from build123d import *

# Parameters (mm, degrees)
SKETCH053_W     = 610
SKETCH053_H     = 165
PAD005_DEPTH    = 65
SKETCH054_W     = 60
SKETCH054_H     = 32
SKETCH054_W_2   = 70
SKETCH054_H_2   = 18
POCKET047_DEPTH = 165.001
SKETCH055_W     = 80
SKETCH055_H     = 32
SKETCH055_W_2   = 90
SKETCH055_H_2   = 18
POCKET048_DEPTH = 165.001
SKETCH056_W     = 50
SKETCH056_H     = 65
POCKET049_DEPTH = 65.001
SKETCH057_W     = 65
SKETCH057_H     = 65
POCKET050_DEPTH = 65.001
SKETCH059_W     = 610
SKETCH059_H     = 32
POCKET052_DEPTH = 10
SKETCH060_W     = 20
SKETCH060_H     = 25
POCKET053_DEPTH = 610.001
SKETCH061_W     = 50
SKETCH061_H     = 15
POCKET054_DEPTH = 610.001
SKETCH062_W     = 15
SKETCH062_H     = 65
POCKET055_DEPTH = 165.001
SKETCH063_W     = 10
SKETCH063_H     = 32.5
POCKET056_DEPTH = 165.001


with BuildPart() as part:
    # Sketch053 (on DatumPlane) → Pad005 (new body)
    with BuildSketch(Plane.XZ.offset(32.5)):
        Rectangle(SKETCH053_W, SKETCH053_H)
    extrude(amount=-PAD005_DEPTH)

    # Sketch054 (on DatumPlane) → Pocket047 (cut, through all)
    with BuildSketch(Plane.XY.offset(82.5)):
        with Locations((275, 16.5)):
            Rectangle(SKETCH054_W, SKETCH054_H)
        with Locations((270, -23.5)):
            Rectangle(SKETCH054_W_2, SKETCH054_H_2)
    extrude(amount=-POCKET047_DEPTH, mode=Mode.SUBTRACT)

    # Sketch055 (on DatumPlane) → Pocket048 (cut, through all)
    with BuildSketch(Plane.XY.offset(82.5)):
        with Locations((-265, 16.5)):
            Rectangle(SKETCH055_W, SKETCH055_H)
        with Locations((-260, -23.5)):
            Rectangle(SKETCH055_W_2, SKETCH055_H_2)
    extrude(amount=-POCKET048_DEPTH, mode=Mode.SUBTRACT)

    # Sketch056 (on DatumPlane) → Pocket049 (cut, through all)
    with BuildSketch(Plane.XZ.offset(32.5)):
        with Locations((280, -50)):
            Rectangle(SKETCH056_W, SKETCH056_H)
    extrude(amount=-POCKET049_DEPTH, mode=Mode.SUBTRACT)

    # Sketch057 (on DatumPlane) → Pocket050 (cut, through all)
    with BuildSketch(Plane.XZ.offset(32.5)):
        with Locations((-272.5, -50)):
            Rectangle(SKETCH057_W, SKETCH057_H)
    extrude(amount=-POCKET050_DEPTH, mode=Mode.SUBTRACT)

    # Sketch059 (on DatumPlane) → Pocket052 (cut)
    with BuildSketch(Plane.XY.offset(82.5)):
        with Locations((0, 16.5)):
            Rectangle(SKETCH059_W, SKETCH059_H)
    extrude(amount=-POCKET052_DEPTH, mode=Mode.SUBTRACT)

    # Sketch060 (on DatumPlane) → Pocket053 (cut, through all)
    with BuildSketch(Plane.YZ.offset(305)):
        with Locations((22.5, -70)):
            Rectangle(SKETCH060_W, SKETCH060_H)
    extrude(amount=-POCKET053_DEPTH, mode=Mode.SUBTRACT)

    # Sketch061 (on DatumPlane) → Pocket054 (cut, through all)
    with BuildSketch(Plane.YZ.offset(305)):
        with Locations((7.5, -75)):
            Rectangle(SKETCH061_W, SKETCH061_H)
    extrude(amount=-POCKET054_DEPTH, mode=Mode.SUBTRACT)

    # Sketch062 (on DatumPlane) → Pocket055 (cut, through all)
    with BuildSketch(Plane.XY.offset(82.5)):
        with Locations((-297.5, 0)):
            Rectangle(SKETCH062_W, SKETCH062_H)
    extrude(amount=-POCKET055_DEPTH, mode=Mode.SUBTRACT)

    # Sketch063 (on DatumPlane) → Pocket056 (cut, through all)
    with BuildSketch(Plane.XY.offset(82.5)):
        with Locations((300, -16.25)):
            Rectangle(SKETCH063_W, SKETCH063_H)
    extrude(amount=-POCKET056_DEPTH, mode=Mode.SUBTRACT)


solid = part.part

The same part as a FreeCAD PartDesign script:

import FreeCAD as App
import Part
import Sketcher

doc = App.newDocument("Part")
body = doc.addObject("PartDesign::Body", "Body")

sketch1 = doc.addObject("Sketcher::SketchObject", "Sketch")
body.addObject(sketch1)
sketch1.AttachmentSupport = (doc.XZ_Plane, [""])
sketch1.MapMode = "FlatFace"
sketch1.AttachmentOffset = App.Placement(App.Vector(0, 0, 32.5), App.Rotation())
sketch1.addGeometry([
    Part.LineSegment(App.Vector(-305, 82, 0), App.Vector(-305, -82, 0)),
    Part.LineSegment(App.Vector(-305, -82, 0), App.Vector(305, -82, 0)),
    Part.LineSegment(App.Vector(305, -82, 0), App.Vector(305, 82, 0)),
    Part.LineSegment(App.Vector(305, 82, 0), App.Vector(-305, 82, 0)),
], False)
sketch1.addConstraint([
    Sketcher.Constraint("Coincident", 0, 2, 1, 1),
    Sketcher.Constraint("Coincident", 1, 2, 2, 1),
    Sketcher.Constraint("Coincident", 2, 2, 3, 1),
    Sketcher.Constraint("Coincident", 3, 2, 0, 1),
    Sketcher.Constraint("Vertical", 0),
    Sketcher.Constraint("Horizontal", 1),
    Sketcher.Constraint("Vertical", 2),
    Sketcher.Constraint("Horizontal", 3),
    Sketcher.Constraint("Symmetric", 0, 2, 2, 2, -1, 1),
    Sketcher.Constraint("DistanceX", 1, 1, 1, 2, 610.0),
    Sketcher.Constraint("DistanceY", 0, 2, 0, 1, 165.0),
])
pad1 = doc.addObject("PartDesign::Pad", "Pad")
body.addObject(pad1)
pad1.Profile = sketch1
pad1.Length = 65
pad1.Reversed = True

sketch2 = doc.addObject("Sketcher::SketchObject", "Sketch001")
body.addObject(sketch2)
sketch2.AttachmentSupport = (doc.XY_Plane, [""])
sketch2.MapMode = "FlatFace"
sketch2.AttachmentOffset = App.Placement(App.Vector(0, 0, 82.5), App.Rotation())
sketch2.addGeometry([
    Part.LineSegment(App.Vector(245, 32, 0), App.Vector(245, 0, 0)),
    Part.LineSegment(App.Vector(245, 0, 0), App.Vector(305, 0, 0)),
    Part.LineSegment(App.Vector(305, 0, 0), App.Vector(305, 32, 0)),
    Part.LineSegment(App.Vector(305, 32, 0), App.Vector(245, 32, 0)),
    Part.LineSegment(App.Vector(235, -14, 0), App.Vector(235, -32, 0)),
    Part.LineSegment(App.Vector(235, -32, 0), App.Vector(305, -32, 0)),
    Part.LineSegment(App.Vector(305, -32, 0), App.Vector(305, -14, 0)),
    Part.LineSegment(App.Vector(305, -14, 0), App.Vector(235, -14, 0)),
], False)
sketch2.addConstraint([
    Sketcher.Constraint("Coincident", 0, 2, 1, 1),
    Sketcher.Constraint("Coincident", 1, 2, 2, 1),
    Sketcher.Constraint("Coincident", 2, 2, 3, 1),
    Sketcher.Constraint("Coincident", 3, 2, 0, 1),
    Sketcher.Constraint("Coincident", 4, 2, 5, 1),
    Sketcher.Constraint("Coincident", 5, 2, 6, 1),
    Sketcher.Constraint("Coincident", 6, 2, 7, 1),
    Sketcher.Constraint("Coincident", 7, 2, 4, 1),
    Sketcher.Constraint("Vertical", 0),
    Sketcher.Constraint("Horizontal", 1),
    Sketcher.Constraint("Vertical", 2),
    Sketcher.Constraint("Horizontal", 3),
    Sketcher.Constraint("Vertical", 4),
    Sketcher.Constraint("Horizontal", 5),
    Sketcher.Constraint("Vertical", 6),
    Sketcher.Constraint("Horizontal", 7),
    Sketcher.Constraint("Symmetric", 2, 2, 5, 2, -1),
    Sketcher.Constraint("DistanceX", 1, 1, 1, 2, 60.0),
    Sketcher.Constraint("DistanceX", 5, 1, 5, 2, 70.0),
    Sketcher.Constraint("DistanceY", 0, 2, 0, 1, 32.0),
    Sketcher.Constraint("DistanceY", 4, 2, 4, 1, 18.0),
    Sketcher.Constraint("DistanceX", -1, 1, 0, 2, 245.0),
    Sketcher.Constraint("DistanceY", 4, 2, 0, 2, 33.0),
])
pocket1 = doc.addObject("PartDesign::Pocket", "Pocket")
body.addObject(pocket1)
pocket1.Profile = sketch2
pocket1.Type = "ThroughAll"

sketch3 = doc.addObject("Sketcher::SketchObject", "Sketch002")
body.addObject(sketch3)
sketch3.AttachmentSupport = (doc.XY_Plane, [""])
sketch3.MapMode = "FlatFace"
sketch3.AttachmentOffset = App.Placement(App.Vector(0, 0, 82.5), App.Rotation())
sketch3.addGeometry([
    Part.LineSegment(App.Vector(-305, 32, 0), App.Vector(-305, 0, 0)),
    Part.LineSegment(App.Vector(-305, 0, 0), App.Vector(-225, 0, 0)),
    Part.LineSegment(App.Vector(-225, 0, 0), App.Vector(-225, 32, 0)),
    Part.LineSegment(App.Vector(-225, 32, 0), App.Vector(-305, 32, 0)),
    Part.LineSegment(App.Vector(-305, -14, 0), App.Vector(-305, -32, 0)),
    Part.LineSegment(App.Vector(-305, -32, 0), App.Vector(-215, -32, 0)),
    Part.LineSegment(App.Vector(-215, -32, 0), App.Vector(-215, -14, 0)),
    Part.LineSegment(App.Vector(-215, -14, 0), App.Vector(-305, -14, 0)),
], False)
sketch3.addConstraint([
    Sketcher.Constraint("Coincident", 0, 2, 1, 1),
    Sketcher.Constraint("Coincident", 1, 2, 2, 1),
    Sketcher.Constraint("Coincident", 2, 2, 3, 1),
    Sketcher.Constraint("Coincident", 3, 2, 0, 1),
    Sketcher.Constraint("Coincident", 4, 2, 5, 1),
    Sketcher.Constraint("Coincident", 5, 2, 6, 1),
    Sketcher.Constraint("Coincident", 6, 2, 7, 1),
    Sketcher.Constraint("Coincident", 7, 2, 4, 1),
    Sketcher.Constraint("Vertical", 0),
    Sketcher.Constraint("Horizontal", 1),
    Sketcher.Constraint("Vertical", 2),
    Sketcher.Constraint("Horizontal", 3),
    Sketcher.Constraint("Vertical", 4),
    Sketcher.Constraint("Horizontal", 5),
    Sketcher.Constraint("Vertical", 6),
    Sketcher.Constraint("Horizontal", 7),
    Sketcher.Constraint("Symmetric", 3, 2, 4, 2, -1),
    Sketcher.Constraint("DistanceX", 1, 1, 1, 2, 80.0),
    Sketcher.Constraint("DistanceX", 5, 1, 5, 2, 90.0),
    Sketcher.Constraint("DistanceY", 0, 2, 0, 1, 32.0),
    Sketcher.Constraint("DistanceY", 4, 2, 4, 1, 18.0),
    Sketcher.Constraint("DistanceX", 0, 2, -1, 1, 305.0),
    Sketcher.Constraint("DistanceY", 4, 2, 0, 2, 33.0),
])
pocket2 = doc.addObject("PartDesign::Pocket", "Pocket001")
body.addObject(pocket2)
pocket2.Profile = sketch3
pocket2.Type = "ThroughAll"

sketch4 = doc.addObject("Sketcher::SketchObject", "Sketch003")
body.addObject(sketch4)
sketch4.AttachmentSupport = (doc.XZ_Plane, [""])
sketch4.MapMode = "FlatFace"
sketch4.AttachmentOffset = App.Placement(App.Vector(0, 0, 32.5), App.Rotation())
sketch4.addGeometry([
    Part.LineSegment(App.Vector(255, -18, 0), App.Vector(255, -82, 0)),
    Part.LineSegment(App.Vector(255, -82, 0), App.Vector(305, -82, 0)),
    Part.LineSegment(App.Vector(305, -82, 0), App.Vector(305, -18, 0)),
    Part.LineSegment(App.Vector(305, -18, 0), App.Vector(255, -18, 0)),
], False)
sketch4.addConstraint([
    Sketcher.Constraint("Coincident", 0, 2, 1, 1),
    Sketcher.Constraint("Coincident", 1, 2, 2, 1),
    Sketcher.Constraint("Coincident", 2, 2, 3, 1),
    Sketcher.Constraint("Coincident", 3, 2, 0, 1),
    Sketcher.Constraint("Vertical", 0),
    Sketcher.Constraint("Horizontal", 1),
    Sketcher.Constraint("Vertical", 2),
    Sketcher.Constraint("Horizontal", 3),
    Sketcher.Constraint("DistanceX", 1, 1, 1, 2, 50.0),
    Sketcher.Constraint("DistanceY", 0, 2, 0, 1, 65.0),
    Sketcher.Constraint("DistanceX", -1, 1, 0, 2, 255.0),
    Sketcher.Constraint("DistanceY", 0, 2, -1, 1, 82.5),
])
pocket3 = doc.addObject("PartDesign::Pocket", "Pocket002")
body.addObject(pocket3)
pocket3.Profile = sketch4
pocket3.Type = "ThroughAll"

sketch5 = doc.addObject("Sketcher::SketchObject", "Sketch004")
body.addObject(sketch5)
sketch5.AttachmentSupport = (doc.XZ_Plane, [""])
sketch5.MapMode = "FlatFace"
sketch5.AttachmentOffset = App.Placement(App.Vector(0, 0, 32.5), App.Rotation())
sketch5.addGeometry([
    Part.LineSegment(App.Vector(-305, -18, 0), App.Vector(-305, -82, 0)),
    Part.LineSegment(App.Vector(-305, -82, 0), App.Vector(-240, -82, 0)),
    Part.LineSegment(App.Vector(-240, -82, 0), App.Vector(-240, -18, 0)),
    Part.LineSegment(App.Vector(-240, -18, 0), App.Vector(-305, -18, 0)),
], False)
sketch5.addConstraint([
    Sketcher.Constraint("Coincident", 0, 2, 1, 1),
    Sketcher.Constraint("Coincident", 1, 2, 2, 1),
    Sketcher.Constraint("Coincident", 2, 2, 3, 1),
    Sketcher.Constraint("Coincident", 3, 2, 0, 1),
    Sketcher.Constraint("Vertical", 0),
    Sketcher.Constraint("Horizontal", 1),
    Sketcher.Constraint("Vertical", 2),
    Sketcher.Constraint("Horizontal", 3),
    Sketcher.Constraint("Equal", 3, 0),
    Sketcher.Constraint("DistanceX", 1, 1, 1, 2, 65.0),
    Sketcher.Constraint("DistanceX", 0, 2, -1, 1, 305.0),
    Sketcher.Constraint("DistanceY", 0, 2, -1, 1, 82.5),
])
pocket4 = doc.addObject("PartDesign::Pocket", "Pocket003")
body.addObject(pocket4)
pocket4.Profile = sketch5
pocket4.Type = "ThroughAll"

sketch6 = doc.addObject("Sketcher::SketchObject", "Sketch005")
body.addObject(sketch6)
sketch6.AttachmentSupport = (doc.XY_Plane, [""])
sketch6.MapMode = "FlatFace"
sketch6.AttachmentOffset = App.Placement(App.Vector(0, 0, 82.5), App.Rotation())
sketch6.addGeometry([
    Part.LineSegment(App.Vector(-305, 32, 0), App.Vector(-305, 0, 0)),
    Part.LineSegment(App.Vector(-305, 0, 0), App.Vector(305, 0, 0)),
    Part.LineSegment(App.Vector(305, 0, 0), App.Vector(305, 32, 0)),
    Part.LineSegment(App.Vector(305, 32, 0), App.Vector(-305, 32, 0)),
], False)
sketch6.addConstraint([
    Sketcher.Constraint("Coincident", 0, 2, 1, 1),
    Sketcher.Constraint("Coincident", 1, 2, 2, 1),
    Sketcher.Constraint("Coincident", 2, 2, 3, 1),
    Sketcher.Constraint("Coincident", 3, 2, 0, 1),
    Sketcher.Constraint("Vertical", 0),
    Sketcher.Constraint("Horizontal", 1),
    Sketcher.Constraint("Vertical", 2),
    Sketcher.Constraint("Horizontal", 3),
    Sketcher.Constraint("DistanceX", 1, 1, 1, 2, 610.0),
    Sketcher.Constraint("DistanceY", 0, 2, 0, 1, 32.0),
    Sketcher.Constraint("DistanceX", 0, 2, -1, 1, 305.0),
    Sketcher.Constraint("DistanceY", -1, 1, 0, 2, 0.5),
])
pocket5 = doc.addObject("PartDesign::Pocket", "Pocket004")
body.addObject(pocket5)
pocket5.Profile = sketch6
pocket5.Length = 10

sketch7 = doc.addObject("Sketcher::SketchObject", "Sketch006")
body.addObject(sketch7)
sketch7.AttachmentSupport = (doc.YZ_Plane, [""])
sketch7.MapMode = "FlatFace"
sketch7.AttachmentOffset = App.Placement(App.Vector(0, 0, 305), App.Rotation())
sketch7.addGeometry([
    Part.LineSegment(App.Vector(12, -58, 0), App.Vector(12, -82, 0)),
    Part.LineSegment(App.Vector(12, -82, 0), App.Vector(32, -82, 0)),
    Part.LineSegment(App.Vector(32, -82, 0), App.Vector(32, -58, 0)),
    Part.LineSegment(App.Vector(32, -58, 0), App.Vector(12, -58, 0)),
], False)
sketch7.addConstraint([
    Sketcher.Constraint("Coincident", 0, 2, 1, 1),
    Sketcher.Constraint("Coincident", 1, 2, 2, 1),
    Sketcher.Constraint("Coincident", 2, 2, 3, 1),
    Sketcher.Constraint("Coincident", 3, 2, 0, 1),
    Sketcher.Constraint("Vertical", 0),
    Sketcher.Constraint("Horizontal", 1),
    Sketcher.Constraint("Vertical", 2),
    Sketcher.Constraint("Horizontal", 3),
    Sketcher.Constraint("DistanceX", 1, 1, 1, 2, 20.0),
    Sketcher.Constraint("DistanceY", 0, 2, 0, 1, 25.0),
    Sketcher.Constraint("DistanceX", -1, 1, 0, 2, 12.5),
    Sketcher.Constraint("DistanceY", 0, 2, -1, 1, 82.5),
])
pocket6 = doc.addObject("PartDesign::Pocket", "Pocket005")
body.addObject(pocket6)
pocket6.Profile = sketch7
pocket6.Type = "ThroughAll"

sketch8 = doc.addObject("Sketcher::SketchObject", "Sketch007")
body.addObject(sketch8)
sketch8.AttachmentSupport = (doc.YZ_Plane, [""])
sketch8.MapMode = "FlatFace"
sketch8.AttachmentOffset = App.Placement(App.Vector(0, 0, 305), App.Rotation())
sketch8.addGeometry([
    Part.LineSegment(App.Vector(-18, -68, 0), App.Vector(-18, -82, 0)),
    Part.LineSegment(App.Vector(-18, -82, 0), App.Vector(32, -82, 0)),
    Part.LineSegment(App.Vector(32, -82, 0), App.Vector(32, -68, 0)),
    Part.LineSegment(App.Vector(32, -68, 0), App.Vector(-18, -68, 0)),
], False)
sketch8.addConstraint([
    Sketcher.Constraint("Coincident", 0, 2, 1, 1),
    Sketcher.Constraint("Coincident", 1, 2, 2, 1),
    Sketcher.Constraint("Coincident", 2, 2, 3, 1),
    Sketcher.Constraint("Coincident", 3, 2, 0, 1),
    Sketcher.Constraint("Vertical", 0),
    Sketcher.Constraint("Horizontal", 1),
    Sketcher.Constraint("Vertical", 2),
    Sketcher.Constraint("Horizontal", 3),
    Sketcher.Constraint("DistanceX", 1, 1, 1, 2, 50.0),
    Sketcher.Constraint("DistanceY", 0, 2, 0, 1, 15.0),
    Sketcher.Constraint("DistanceX", 0, 2, -1, 1, 17.5),
    Sketcher.Constraint("DistanceY", 0, 2, -1, 1, 82.5),
])
pocket7 = doc.addObject("PartDesign::Pocket", "Pocket006")
body.addObject(pocket7)
pocket7.Profile = sketch8
pocket7.Type = "ThroughAll"

sketch9 = doc.addObject("Sketcher::SketchObject", "Sketch008")
body.addObject(sketch9)
sketch9.AttachmentSupport = (doc.XY_Plane, [""])
sketch9.MapMode = "FlatFace"
sketch9.AttachmentOffset = App.Placement(App.Vector(0, 0, 82.5), App.Rotation())
sketch9.addGeometry([
    Part.LineSegment(App.Vector(-305, 32, 0), App.Vector(-305, -32, 0)),
    Part.LineSegment(App.Vector(-305, -32, 0), App.Vector(-290, -32, 0)),
    Part.LineSegment(App.Vector(-290, -32, 0), App.Vector(-290, 32, 0)),
    Part.LineSegment(App.Vector(-290, 32, 0), App.Vector(-305, 32, 0)),
], False)
sketch9.addConstraint([
    Sketcher.Constraint("Coincident", 0, 2, 1, 1),
    Sketcher.Constraint("Coincident", 1, 2, 2, 1),
    Sketcher.Constraint("Coincident", 2, 2, 3, 1),
    Sketcher.Constraint("Coincident", 3, 2, 0, 1),
    Sketcher.Constraint("Vertical", 0),
    Sketcher.Constraint("Horizontal", 1),
    Sketcher.Constraint("Vertical", 2),
    Sketcher.Constraint("Horizontal", 3),
    Sketcher.Constraint("DistanceX", 1, 1, 1, 2, 15.0),
    Sketcher.Constraint("DistanceY", 0, 2, 0, 1, 65.0),
    Sketcher.Constraint("DistanceX", 0, 2, -1, 1, 305.0),
    Sketcher.Constraint("DistanceY", 0, 2, -1, 1, 32.5),
])
pocket8 = doc.addObject("PartDesign::Pocket", "Pocket007")
body.addObject(pocket8)
pocket8.Profile = sketch9
pocket8.Type = "ThroughAll"

sketch10 = doc.addObject("Sketcher::SketchObject", "Sketch009")
body.addObject(sketch10)
sketch10.AttachmentSupport = (doc.XY_Plane, [""])
sketch10.MapMode = "FlatFace"
sketch10.AttachmentOffset = App.Placement(App.Vector(0, 0, 82.5), App.Rotation())
sketch10.addGeometry([
    Part.LineSegment(App.Vector(295, 0, 0), App.Vector(295, -32, 0)),
    Part.LineSegment(App.Vector(295, -32, 0), App.Vector(305, -32, 0)),
    Part.LineSegment(App.Vector(305, -32, 0), App.Vector(305, 0, 0)),
    Part.LineSegment(App.Vector(305, 0, 0), App.Vector(295, 0, 0)),
], False)
sketch10.addConstraint([
    Sketcher.Constraint("Coincident", 0, 2, 1, 1),
    Sketcher.Constraint("Coincident", 1, 2, 2, 1),
    Sketcher.Constraint("Coincident", 2, 2, 3, 1),
    Sketcher.Constraint("Coincident", 3, 2, 0, 1),
    Sketcher.Constraint("Vertical", 0),
    Sketcher.Constraint("Horizontal", 1),
    Sketcher.Constraint("Vertical", 2),
    Sketcher.Constraint("Horizontal", 3),
    Sketcher.Constraint("PointOnObject", 2, 2, -1),
    Sketcher.Constraint("DistanceX", 1, 1, 1, 2, 10.0),
    Sketcher.Constraint("DistanceY", 0, 2, 0, 1, 32.5),
    Sketcher.Constraint("DistanceX", -1, 1, 0, 2, 295.0),
])
pocket9 = doc.addObject("PartDesign::Pocket", "Pocket008")
body.addObject(pocket9)
pocket9.Profile = sketch10
pocket9.Type = "ThroughAll"

doc.recompute()
